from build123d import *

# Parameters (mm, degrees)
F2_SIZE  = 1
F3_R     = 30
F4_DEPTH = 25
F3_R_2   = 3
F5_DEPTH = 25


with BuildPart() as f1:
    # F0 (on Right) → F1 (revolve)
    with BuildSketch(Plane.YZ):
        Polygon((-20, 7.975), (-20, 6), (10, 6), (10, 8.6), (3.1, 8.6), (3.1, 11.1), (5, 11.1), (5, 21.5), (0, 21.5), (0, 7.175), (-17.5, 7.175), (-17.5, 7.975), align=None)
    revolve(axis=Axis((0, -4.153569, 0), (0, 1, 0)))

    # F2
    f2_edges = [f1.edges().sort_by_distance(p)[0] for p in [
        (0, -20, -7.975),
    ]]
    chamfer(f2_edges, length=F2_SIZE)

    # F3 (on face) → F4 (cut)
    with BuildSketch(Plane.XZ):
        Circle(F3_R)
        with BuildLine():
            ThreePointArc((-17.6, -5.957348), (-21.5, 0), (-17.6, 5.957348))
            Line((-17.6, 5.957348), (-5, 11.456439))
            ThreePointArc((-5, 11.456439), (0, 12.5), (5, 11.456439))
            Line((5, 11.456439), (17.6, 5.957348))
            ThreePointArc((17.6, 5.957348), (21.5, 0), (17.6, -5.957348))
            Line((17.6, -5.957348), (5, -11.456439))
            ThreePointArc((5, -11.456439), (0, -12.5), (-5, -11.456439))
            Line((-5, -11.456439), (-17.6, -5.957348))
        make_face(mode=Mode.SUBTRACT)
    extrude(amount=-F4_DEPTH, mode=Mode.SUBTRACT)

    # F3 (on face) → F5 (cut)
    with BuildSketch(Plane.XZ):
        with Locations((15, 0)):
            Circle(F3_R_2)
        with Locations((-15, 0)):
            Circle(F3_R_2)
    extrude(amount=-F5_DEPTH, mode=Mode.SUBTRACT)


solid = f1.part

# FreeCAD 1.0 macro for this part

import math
import FreeCAD as App
import Part
import Sketcher

V = App.Vector


def edges_at(feature, points):
    """Names of the edges that pass closest to the given points."""
    edges = feature.Shape.Edges
    near = lambda p: min(range(len(edges)), key=lambda i: edges[i].distToShape(Part.Vertex(*p))[0])
    return sorted({f"Edge{near(p) + 1}" for p in points})


def add_polygon(sketch, points):
    """Adds a closed chain of lines whose ends are joined by coincident constraints."""
    first, n = sketch.GeometryCount, len(points)
    for a, b in zip(points, points[1:] + points[:1]):
        sketch.addGeometry(Part.LineSegment(App.Vector(*a, 0), App.Vector(*b, 0)), False)
    for i in range(n):
        sketch.addConstraint(Sketcher.Constraint("Coincident", first + i, 2, first + (i + 1) % n, 1))

doc = App.newDocument("Part")
body = doc.addObject("PartDesign::Body", "Body")

sketch1 = doc.addObject("Sketcher::SketchObject", "Sketch")
body.addObject(sketch1)
sketch1.AttachmentSupport = (doc.YZ_Plane, [""])
sketch1.MapMode = "FlatFace"
add_polygon(sketch1, [(-20, 7.975), (-20, 6), (10, 6), (10, 8.6), (3.1, 8.6), (3.1, 11.1), (5, 11.1), (5, 21.5), (0, 21.5), (0, 7.175), (-17.5, 7.175), (-17.5, 7.975)])
sketch1.addConstraint([
    Sketcher.Constraint("Vertical", 0),
    Sketcher.Constraint("Horizontal", 1),
    Sketcher.Constraint("Vertical", 2),
    Sketcher.Constraint("Horizontal", 3),
    Sketcher.Constraint("Vertical", 4),
    Sketcher.Constraint("Horizontal", 5),
    Sketcher.Constraint("Vertical", 6),
    Sketcher.Constraint("Horizontal", 7),
    Sketcher.Constraint("Vertical", 8),
    Sketcher.Constraint("Horizontal", 9),
    Sketcher.Constraint("Vertical", 10),
    Sketcher.Constraint("Horizontal", 11),
    Sketcher.Constraint("PointOnObject", 7, 2, -2),
    Sketcher.Constraint("Equal", 11, 4),
    Sketcher.Constraint("DistanceX", 1, 1, 1, 2, 30.0),
    Sketcher.Constraint("DistanceX", 7, 2, 7, 1, 5.0),
    Sketcher.Constraint("DistanceX", 3, 2, 3, 1, 6.9),
    Sketcher.Constraint("DistanceX", 5, 1, 5, 2, 1.9),
    Sketcher.Constraint("DistanceX", 9, 2, 9, 1, 17.5),
    Sketcher.Constraint("DistanceY", 2, 1, 2, 2, 2.6),
    Sketcher.Constraint("DistanceY", 6, 1, 6, 2, 10.4),
    Sketcher.Constraint("DistanceY", 10, 1, 10, 2, 0.8),
    Sketcher.Constraint("DistanceY", -1, 1, 0, 2, 6.0),
    Sketcher.Constraint("DistanceY", 0, 2, 0, 1, 1.975),
])
revolution = doc.addObject("PartDesign::Revolution", "Revolution")
body.addObject(revolution)
revolution.Profile = sketch1
revolution.ReferenceAxis = (sketch1, ["H_Axis"])
revolution.Angle = 360
doc.recompute()

chamfer = doc.addObject("PartDesign::Chamfer", "Chamfer")
body.addObject(chamfer)
chamfer.Base = (revolution, edges_at(revolution, [(0, -20, -7.975)]))
chamfer.Size = 1

sketch2 = doc.addObject("Sketcher::SketchObject", "Sketch001")
body.addObject(sketch2)
sketch2.AttachmentSupport = (doc.XZ_Plane, [""])
sketch2.MapMode = "FlatFace"
sketch2.addGeometry([
    Part.Circle(V(0, 0, 0), V(0, 0, 1), 30),
    Part.LineSegment(V(-5, -11.456439, 0), V(-17.6, -5.957348, 0)),
    Part.ArcOfCircle(Part.Circle(V(-15.000001, 0, 0), V(0, 0, 1), 6.499999), math.radians(113.578175), math.radians(246.421825)),
    Part.LineSegment(V(-17.6, 5.957348, 0), V(-5, 11.456439, 0)),
    Part.ArcOfCircle(Part.Circle(V(0, 0.000003, 0), V(0, 0, 1), 12.499997), math.radians(66.421816), math.radians(113.578184)),
    Part.LineSegment(V(5, 11.456439, 0), V(17.6, 5.957348, 0)),
    Part.ArcOfCircle(Part.Circle(V(15.000001, 0, 0), V(0, 0, 1), 6.499999), math.radians(-66.421825), math.radians(66.421825)),
    Part.LineSegment(V(17.6, -5.957348, 0), V(5, -11.456439, 0)),
    Part.ArcOfCircle(Part.Circle(V(0, -0.000003, 0), V(0, 0, 1), 12.499997), math.radians(-113.578184), math.radians(-66.421816)),
], False)
sketch2.addConstraint([
    Sketcher.Constraint("Tangent", 1, 2, 2, 2),
    Sketcher.Constraint("Tangent", 2, 1, 3, 1),
    Sketcher.Constraint("Tangent", 3, 2, 4, 2),
    Sketcher.Constraint("Tangent", 4, 1, 5, 1),
    Sketcher.Constraint("Tangent", 5, 2, 6, 2),
    Sketcher.Constraint("Tangent", 6, 1, 7, 1),
    Sketcher.Constraint("Tangent", 7, 2, 8, 2),
    Sketcher.Constraint("Tangent", 8, 1, 1, 1),
    Sketcher.Constraint("Coincident", 0, 3, -1, 1),
    Sketcher.Constraint("Coincident", 4, 3, -1, 1),
    Sketcher.Constraint("Coincident", 8, 3, -1, 1),
    Sketcher.Constraint("Equal", 2, 6),
    Sketcher.Constraint("Equal", 4, 8),
    Sketcher.Constraint("Symmetric", 2, 3, 6, 3, -1, 1),
    Sketcher.Constraint("PointOnObject", 2, 3, -1),
    Sketcher.Constraint("Diameter", 0, 60.0),
    Sketcher.Constraint("Radius", 2, 6.499999),
    Sketcher.Constraint("DistanceX", 2, 3, -1, 1, 15.000001),
    Sketcher.Constraint("DistanceX", 3, 2, -1, 1, 5.0),
])
pocket1 = doc.addObject("PartDesign::Pocket", "Pocket")
body.addObject(pocket1)
pocket1.Profile = sketch2
pocket1.Length = 25

sketch3 = doc.addObject("Sketcher::SketchObject", "Sketch002")
body.addObject(sketch3)
sketch3.AttachmentSupport = (doc.XZ_Plane, [""])
sketch3.MapMode = "FlatFace"
sketch3.addGeometry([
    Part.Circle(V(15, 0, 0), V(0, 0, 1), 3),
    Part.Circle(V(-15, 0, 0), V(0, 0, 1), 3),
], False)
sketch3.addConstraint([
    Sketcher.Constraint("Equal", 0, 1),
    Sketcher.Constraint("Symmetric", 0, 3, 1, 3, -1, 1),
    Sketcher.Constraint("PointOnObject", 0, 3, -1),
    Sketcher.Constraint("Diameter", 0, 6.0),
    Sketcher.Constraint("DistanceX", -1, 1, 0, 3, 15.0),
])
pocket2 = doc.addObject("PartDesign::Pocket", "Pocket001")
body.addObject(pocket2)
pocket2.Profile = sketch3
pocket2.Length = 25

doc.recompute()
